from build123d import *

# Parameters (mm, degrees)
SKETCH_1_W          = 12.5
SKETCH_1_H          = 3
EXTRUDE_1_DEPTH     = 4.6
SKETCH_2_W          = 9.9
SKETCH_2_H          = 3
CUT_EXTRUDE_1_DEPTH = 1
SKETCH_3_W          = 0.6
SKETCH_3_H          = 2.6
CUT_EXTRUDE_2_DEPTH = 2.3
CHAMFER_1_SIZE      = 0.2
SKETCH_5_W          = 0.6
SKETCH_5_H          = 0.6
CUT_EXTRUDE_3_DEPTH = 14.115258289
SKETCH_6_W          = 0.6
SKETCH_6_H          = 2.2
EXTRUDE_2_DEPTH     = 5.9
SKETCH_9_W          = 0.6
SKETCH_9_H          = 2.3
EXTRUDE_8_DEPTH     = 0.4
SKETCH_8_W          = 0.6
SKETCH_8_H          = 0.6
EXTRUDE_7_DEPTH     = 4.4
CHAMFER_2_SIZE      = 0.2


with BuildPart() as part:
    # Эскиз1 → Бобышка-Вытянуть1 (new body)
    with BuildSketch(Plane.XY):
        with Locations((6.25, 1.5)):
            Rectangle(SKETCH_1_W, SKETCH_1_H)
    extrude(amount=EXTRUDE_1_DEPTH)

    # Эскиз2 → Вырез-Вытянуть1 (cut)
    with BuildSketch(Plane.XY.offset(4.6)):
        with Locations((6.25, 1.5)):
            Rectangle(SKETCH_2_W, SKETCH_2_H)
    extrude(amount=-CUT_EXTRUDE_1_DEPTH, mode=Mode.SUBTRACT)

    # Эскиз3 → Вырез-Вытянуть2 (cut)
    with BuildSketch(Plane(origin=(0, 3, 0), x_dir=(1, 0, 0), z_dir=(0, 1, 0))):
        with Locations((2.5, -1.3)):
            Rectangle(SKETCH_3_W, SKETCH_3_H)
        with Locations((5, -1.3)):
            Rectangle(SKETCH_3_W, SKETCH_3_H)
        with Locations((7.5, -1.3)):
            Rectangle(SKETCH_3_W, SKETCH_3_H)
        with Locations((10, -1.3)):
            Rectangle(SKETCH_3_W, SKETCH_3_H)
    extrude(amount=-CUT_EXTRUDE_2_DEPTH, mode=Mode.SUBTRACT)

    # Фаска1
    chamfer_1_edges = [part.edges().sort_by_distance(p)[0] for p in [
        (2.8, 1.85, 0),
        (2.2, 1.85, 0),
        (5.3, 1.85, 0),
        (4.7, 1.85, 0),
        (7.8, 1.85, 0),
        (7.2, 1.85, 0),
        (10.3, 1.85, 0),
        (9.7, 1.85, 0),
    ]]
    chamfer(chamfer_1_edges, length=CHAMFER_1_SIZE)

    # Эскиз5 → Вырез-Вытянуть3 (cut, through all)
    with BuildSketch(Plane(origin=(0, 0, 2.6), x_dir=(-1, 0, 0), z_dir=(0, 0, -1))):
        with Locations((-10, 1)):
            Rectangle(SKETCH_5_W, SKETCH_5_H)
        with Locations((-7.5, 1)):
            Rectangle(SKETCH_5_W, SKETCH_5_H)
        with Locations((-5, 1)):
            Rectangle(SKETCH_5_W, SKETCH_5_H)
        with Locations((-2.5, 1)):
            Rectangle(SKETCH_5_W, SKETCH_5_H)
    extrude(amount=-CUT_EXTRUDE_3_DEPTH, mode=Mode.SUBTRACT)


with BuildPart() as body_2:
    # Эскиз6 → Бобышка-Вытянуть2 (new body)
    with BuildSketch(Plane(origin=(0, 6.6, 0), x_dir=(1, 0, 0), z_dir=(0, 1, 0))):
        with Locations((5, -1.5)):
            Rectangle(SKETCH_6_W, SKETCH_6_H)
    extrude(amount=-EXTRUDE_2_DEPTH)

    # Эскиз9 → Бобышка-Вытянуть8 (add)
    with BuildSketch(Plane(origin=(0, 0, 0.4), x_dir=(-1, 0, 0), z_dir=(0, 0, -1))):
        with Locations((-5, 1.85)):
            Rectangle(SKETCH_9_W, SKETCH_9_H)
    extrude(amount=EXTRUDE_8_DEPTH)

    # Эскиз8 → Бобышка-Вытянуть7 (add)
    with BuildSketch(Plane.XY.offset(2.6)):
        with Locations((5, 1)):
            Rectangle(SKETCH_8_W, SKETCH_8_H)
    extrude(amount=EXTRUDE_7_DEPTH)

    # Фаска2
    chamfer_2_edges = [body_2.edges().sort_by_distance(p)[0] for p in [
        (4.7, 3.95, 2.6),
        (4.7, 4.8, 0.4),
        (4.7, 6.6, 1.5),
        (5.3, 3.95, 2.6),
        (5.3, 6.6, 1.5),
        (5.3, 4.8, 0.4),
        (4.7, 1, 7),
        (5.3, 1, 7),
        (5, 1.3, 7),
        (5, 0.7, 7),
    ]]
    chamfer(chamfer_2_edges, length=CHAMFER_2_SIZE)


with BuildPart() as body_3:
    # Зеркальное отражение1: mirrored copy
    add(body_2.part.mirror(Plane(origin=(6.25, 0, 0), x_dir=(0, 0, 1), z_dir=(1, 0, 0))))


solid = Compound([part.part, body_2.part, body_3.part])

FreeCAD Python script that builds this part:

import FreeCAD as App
import Part
import Sketcher


def edges_at(feature, points):
    """Names of the edges that pass closest to the given points."""
    edges = feature.Shape.Edges
    near = lambda p: min(range(len(edges)), key=lambda i: edges[i].distToShape(Part.Vertex(*p))[0])
    return sorted({f"Edge{near(p) + 1}" for p in points})


def add_polygon(sketch, points):
    """Adds a closed chain of lines whose ends are joined by coincident constraints."""
    first, n = sketch.GeometryCount, len(points)
    for a, b in zip(points, points[1:] + points[:1]):
        sketch.addGeometry(Part.LineSegment(App.Vector(*a, 0), App.Vector(*b, 0)), False)
    for i in range(n):
        sketch.addConstraint(Sketcher.Constraint("Coincident", first + i, 2, first + (i + 1) % n, 1))

doc = App.newDocument("Part")
body = doc.addObject("PartDesign::Body", "Body")

sketch1 = body.newObject("Sketcher::SketchObject", "Sketch")
sketch1.AttachmentSupport = (doc.getObject("XY_Plane"), [""])
sketch1.MapMode = "FlatFace"
add_polygon(sketch1, [(0, 3), (0, 0), (12.5, 0), (12.5, 3)])
sketch1.addConstraint([
    Sketcher.Constraint("Vertical", 0),
    Sketcher.Constraint("Horizontal", 1),
    Sketcher.Constraint("Vertical", 2),
    Sketcher.Constraint("Horizontal", 3),
    Sketcher.Constraint("Coincident", 0, 2, -1, 1),
    Sketcher.Constraint("DistanceY", 0, 2, 0, 1, 3.0),
    Sketcher.Constraint("DistanceX", 1, 1, 1, 2, 12.5),
])
pad1 = body.newObject("PartDesign::Pad", "Pad")
pad1.Profile = sketch1
pad1.Length = 4.6

sketch2 = body.newObject("Sketcher::SketchObject", "Sketch001")
sketch2.AttachmentSupport = (doc.getObject("XY_Plane"), [""])
sketch2.MapMode = "FlatFace"
sketch2.AttachmentOffset = App.Placement(App.Vector(0, 0, 4.6), App.Rotation())
add_polygon(sketch2, [(1.3, 3), (1.3, 0), (11.2, 0), (11.2, 3)])
sketch2.addConstraint([
    Sketcher.Constraint("Vertical", 0),
    Sketcher.Constraint("Horizontal", 1),
    Sketcher.Constraint("Vertical", 2),
    Sketcher.Constraint("Horizontal", 3),
    Sketcher.Constraint("PointOnObject", 0, 2, -1),
    Sketcher.Constraint("DistanceY", 0, 2, 0, 1, 3.0),
    Sketcher.Constraint("DistanceX", 1, 1, 1, 2, 9.9),
    Sketcher.Constraint("DistanceX", -1, 1, 0, 2, 1.3),
])
pocket1 = body.newObject("PartDesign::Pocket", "Pocket")
pocket1.Profile = sketch2
pocket1.Length = 1

sketch3 = body.newObject("Sketcher::SketchObject", "Sketch002")
sketch3.AttachmentSupport = (doc.getObject("XZ_Plane"), [""])
sketch3.MapMode = "FlatFace"
sketch3.AttachmentOffset = App.Placement(App.Vector(0, 0, -3), App.Rotation())
add_polygon(sketch3, [(2.2, 0), (2.2, 2.6), (2.8, 2.6), (2.8, 0)])
add_polygon(sketch3, [(4.7, 0), (4.7, 2.6), (5.3, 2.6), (5.3, 0)])
add_polygon(sketch3, [(7.2, 0), (7.2, 2.6), (7.8, 2.6), (7.8, 0)])
add_polygon(sketch3, [(9.7, 0), (9.7, 2.6), (10.3, 2.6), (10.3, 0)])
sketch3.addConstraint([
    Sketcher.Constraint("Vertical", 0),
    Sketcher.Constraint("Horizontal", 1),
    Sketcher.Constraint("Vertical", 2),
    Sketcher.Constraint("Horizontal", 3),
    Sketcher.Constraint("Vertical", 4),
    Sketcher.Constraint("Horizontal", 5),
    Sketcher.Constraint("Vertical", 6),
    Sketcher.Constraint("Horizontal", 7),
    Sketcher.Constraint("Vertical", 8),
    Sketcher.Constraint("Horizontal", 9),
    Sketcher.Constraint("Vertical", 10),
    Sketcher.Constraint("Horizontal", 11),
    Sketcher.Constraint("Vertical", 12),
    Sketcher.Constraint("Horizontal", 13),
    Sketcher.Constraint("Vertical", 14),
    Sketcher.Constraint("Horizontal", 15),
    Sketcher.Constraint("PointOnObject", 2, 2, -1),
    Sketcher.Constraint("PointOnObject", 6, 2, -1),
    Sketcher.Constraint("PointOnObject", 10, 2, -1),
    Sketcher.Constraint("PointOnObject", 14, 2, -1),
    Sketcher.Constraint("Horizontal", 1, 2, 4, 2),
    Sketcher.Constraint("Horizontal", 5, 2, 8, 2),
    Sketcher.Constraint("Horizontal", 9, 2, 12, 2),
    Sketcher.Constraint("Equal", 3, 5),
    Sketcher.Constraint("Equal", 7, 9),
    Sketcher.Constraint("Equal", 11, 13),
    Sketcher.Constraint("DistanceX", 1, 1, 1, 2, 0.6),
    Sketcher.Constraint("DistanceY", 0, 1, 0, 2, 2.6),
    Sketcher.Constraint("DistanceX", -1, 1, 0, 2, 2.2),
    Sketcher.Constraint("DistanceX", -1, 1, 4, 2, 4.7),
    Sketcher.Constraint("DistanceX", -1, 1, 8, 2, 7.2),
    Sketcher.Constraint("DistanceX", -1, 1, 12, 2, 9.7),
])
pocket2 = body.newObject("PartDesign::Pocket", "Pocket001")
pocket2.Profile = sketch3
pocket2.Length = 2.3
pocket2.Reversed = True
doc.recompute()

chamfer = body.newObject("PartDesign::Chamfer", "Chamfer")
chamfer.Base = (pocket2, edges_at(pocket2, [
    (2.8, 1.85, 0),
    (2.2, 1.85, 0),
    (5.3, 1.85, 0),
    (4.7, 1.85, 0),
    (7.8, 1.85, 0),
    (7.2, 1.85, 0),
    (10.3, 1.85, 0),
    (9.7, 1.85, 0),
]))
chamfer.Size = 0.2

sketch4 = body.newObject("Sketcher::SketchObject", "Sketch003")
sketch4.AttachmentSupport = (doc.getObject("XY_Plane"), [""])
sketch4.MapMode = "FlatFace"
sketch4.AttachmentOffset = App.Placement(App.Vector(0, 0, 2.6), App.Rotation())
add_polygon(sketch4, [(10.3, 1.3), (10.3, 0.7), (9.7, 0.7), (9.7, 1.3)])
add_polygon(sketch4, [(7.8, 1.3), (7.8, 0.7), (7.2, 0.7), (7.2, 1.3)])
add_polygon(sketch4, [(5.3, 1.3), (5.3, 0.7), (4.7, 0.7), (4.7, 1.3)])
add_polygon(sketch4, [(2.8, 1.3), (2.8, 0.7), (2.2, 0.7), (2.2, 1.3)])
sketch4.addConstraint([
    Sketcher.Constraint("Vertical", 0),
    Sketcher.Constraint("Horizontal", 1),
    Sketcher.Constraint("Vertical", 2),
    Sketcher.Constraint("Horizontal", 3),
    Sketcher.Constraint("Vertical", 4),
    Sketcher.Constraint("Horizontal", 5),
    Sketcher.Constraint("Vertical", 6),
    Sketcher.Constraint("Horizontal", 7),
    Sketcher.Constraint("Vertical", 8),
    Sketcher.Constraint("Horizontal", 9),
    Sketcher.Constraint("Vertical", 10),
    Sketcher.Constraint("Horizontal", 11),
    Sketcher.Constraint("Vertical", 12),
    Sketcher.Constraint("Horizontal", 13),
    Sketcher.Constraint("Vertical", 14),
    Sketcher.Constraint("Horizontal", 15),
    Sketcher.Constraint("Horizontal", 1, 2, 4, 2),
    Sketcher.Constraint("Horizontal", 3, 2, 6, 2),
    Sketcher.Constraint("Horizontal", 5, 2, 8, 2),
    Sketcher.Constraint("Horizontal", 7, 2, 10, 2),
    Sketcher.Constraint("Horizontal", 9, 2, 12, 2),
    Sketcher.Constraint("Horizontal", 11, 2, 14, 2),
    Sketcher.Constraint("Equal", 3, 5),
    Sketcher.Constraint("Equal", 7, 9),
    Sketcher.Constraint("Equal", 11, 13),
    Sketcher.Constraint("Equal", 15, 0),
    Sketcher.Constraint("DistanceX", 1, 2, 1, 1, 0.6),
    Sketcher.Constraint("DistanceX", -1, 1, 0, 2, 10.3),
    Sketcher.Constraint("DistanceY", -1, 1, 0, 2, 0.7),
    Sketcher.Constraint("DistanceX", -1, 1, 4, 2, 7.8),
    Sketcher.Constraint("DistanceX", -1, 1, 8, 2, 5.3),
    Sketcher.Constraint("DistanceX", -1, 1, 12, 2, 2.8),
])
pocket3 = body.newObject("PartDesign::Pocket", "Pocket002")
pocket3.Profile = sketch4
pocket3.Type = "ThroughAll"
pocket3.Reversed = True
body2 = doc.addObject("PartDesign::Body", "Body001")

sketch5 = body2.newObject("Sketcher::SketchObject", "Sketch004")
sketch5.AttachmentSupport = (doc.getObject("XZ_Plane001"), [""])
sketch5.MapMode = "FlatFace"
sketch5.AttachmentOffset = App.Placement(App.Vector(0, 0, -6.6), App.Rotation())
add_polygon(sketch5, [(4.7, 0.4), (4.7, 2.6), (5.3, 2.6), (5.3, 0.4)])
sketch5.addConstraint([
    Sketcher.Constraint("Vertical", 0),
    Sketcher.Constraint("Horizontal", 1),
    Sketcher.Constraint("Vertical", 2),
    Sketcher.Constraint("Horizontal", 3),
    Sketcher.Constraint("DistanceX", 1, 1, 1, 2, 0.6),
    Sketcher.Constraint("DistanceY", 0, 1, 0, 2, 2.2),
    Sketcher.Constraint("DistanceX", -1, 1, 0, 2, 4.7),
    Sketcher.Constraint("DistanceY", -1, 1, 0, 2, 2.6),
])
pad2 = body2.newObject("PartDesign::Pad", "Pad001")
pad2.Profile = sketch5
pad2.Length = 5.9

sketch6 = body2.newObject("Sketcher::SketchObject", "Sketch005")
sketch6.AttachmentSupport = (doc.getObject("XY_Plane001"), [""])
sketch6.MapMode = "FlatFace"
sketch6.AttachmentOffset = App.Placement(App.Vector(0, 0, 0.4), App.Rotation())
add_polygon(sketch6, [(5.3, 3), (5.3, 0.7), (4.7, 0.7), (4.7, 3)])
sketch6.addConstraint([
    Sketcher.Constraint("Vertical", 0),
    Sketcher.Constraint("Horizontal", 1),
    Sketcher.Constraint("Vertical", 2),
    Sketcher.Constraint("Horizontal", 3),
    Sketcher.Constraint("DistanceX", 1, 2, 1, 1, 0.6),
    Sketcher.Constraint("DistanceY", 0, 2, 0, 1, 2.3),
    Sketcher.Constraint("DistanceY", -1, 1, 2, 2, 3.0),
    Sketcher.Constraint("DistanceX", -1, 1, 0, 2, 5.3),
])
pad3 = body2.newObject("PartDesign::Pad", "Pad002")
pad3.Profile = sketch6
pad3.Length = 0.4
pad3.Reversed = True

sketch7 = body2.newObject("Sketcher::SketchObject", "Sketch006")
sketch7.AttachmentSupport = (doc.getObject("XY_Plane001"), [""])
sketch7.MapMode = "FlatFace"
sketch7.AttachmentOffset = App.Placement(App.Vector(0, 0, 2.6), App.Rotation())
add_polygon(sketch7, [(4.7, 1.3), (4.7, 0.7), (5.3, 0.7), (5.3, 1.3)])
sketch7.addConstraint([
    Sketcher.Constraint("Vertical", 0),
    Sketcher.Constraint("Horizontal", 1),
    Sketcher.Constraint("Vertical", 2),
    Sketcher.Constraint("Horizontal", 3),
    Sketcher.Constraint("Equal", 3, 0),
    Sketcher.Constraint("DistanceX", 1, 1, 1, 2, 0.6),
    Sketcher.Constraint("DistanceX", -1, 1, 0, 2, 4.7),
    Sketcher.Constraint("DistanceY", -1, 1, 0, 2, 0.7),
])
pad4 = body2.newObject("PartDesign::Pad", "Pad003")
pad4.Profile = sketch7
pad4.Length = 4.4
doc.recompute()

chamfer2 = body2.newObject("PartDesign::Chamfer", "Chamfer001")
chamfer2.Base = (pad4, edges_at(pad4, [
    (4.7, 3.95, 2.6),
    (4.7, 4.8, 0.4),
    (4.7, 6.6, 1.5),
    (5.3, 3.95, 2.6),
    (5.3, 6.6, 1.5),
    (5.3, 4.8, 0.4),
    (4.7, 1, 7),
    (5.3, 1, 7),
    (5, 1.3, 7),
    (5, 0.7, 7),
]))
chamfer2.Size = 0.2
body3 = doc.addObject("PartDesign::Body", "Body002")
doc.recompute()

mirroring = doc.addObject("Part::Mirroring", "Mirroring")
mirroring.Source = body2
mirroring.Base = App.Vector(6.25, 0, 0)
mirroring.Normal = App.Vector(1, 0, 0)
body3.BaseFeature = mirroring
doc.recompute()
mirroring.Visibility = False

doc.recompute()
